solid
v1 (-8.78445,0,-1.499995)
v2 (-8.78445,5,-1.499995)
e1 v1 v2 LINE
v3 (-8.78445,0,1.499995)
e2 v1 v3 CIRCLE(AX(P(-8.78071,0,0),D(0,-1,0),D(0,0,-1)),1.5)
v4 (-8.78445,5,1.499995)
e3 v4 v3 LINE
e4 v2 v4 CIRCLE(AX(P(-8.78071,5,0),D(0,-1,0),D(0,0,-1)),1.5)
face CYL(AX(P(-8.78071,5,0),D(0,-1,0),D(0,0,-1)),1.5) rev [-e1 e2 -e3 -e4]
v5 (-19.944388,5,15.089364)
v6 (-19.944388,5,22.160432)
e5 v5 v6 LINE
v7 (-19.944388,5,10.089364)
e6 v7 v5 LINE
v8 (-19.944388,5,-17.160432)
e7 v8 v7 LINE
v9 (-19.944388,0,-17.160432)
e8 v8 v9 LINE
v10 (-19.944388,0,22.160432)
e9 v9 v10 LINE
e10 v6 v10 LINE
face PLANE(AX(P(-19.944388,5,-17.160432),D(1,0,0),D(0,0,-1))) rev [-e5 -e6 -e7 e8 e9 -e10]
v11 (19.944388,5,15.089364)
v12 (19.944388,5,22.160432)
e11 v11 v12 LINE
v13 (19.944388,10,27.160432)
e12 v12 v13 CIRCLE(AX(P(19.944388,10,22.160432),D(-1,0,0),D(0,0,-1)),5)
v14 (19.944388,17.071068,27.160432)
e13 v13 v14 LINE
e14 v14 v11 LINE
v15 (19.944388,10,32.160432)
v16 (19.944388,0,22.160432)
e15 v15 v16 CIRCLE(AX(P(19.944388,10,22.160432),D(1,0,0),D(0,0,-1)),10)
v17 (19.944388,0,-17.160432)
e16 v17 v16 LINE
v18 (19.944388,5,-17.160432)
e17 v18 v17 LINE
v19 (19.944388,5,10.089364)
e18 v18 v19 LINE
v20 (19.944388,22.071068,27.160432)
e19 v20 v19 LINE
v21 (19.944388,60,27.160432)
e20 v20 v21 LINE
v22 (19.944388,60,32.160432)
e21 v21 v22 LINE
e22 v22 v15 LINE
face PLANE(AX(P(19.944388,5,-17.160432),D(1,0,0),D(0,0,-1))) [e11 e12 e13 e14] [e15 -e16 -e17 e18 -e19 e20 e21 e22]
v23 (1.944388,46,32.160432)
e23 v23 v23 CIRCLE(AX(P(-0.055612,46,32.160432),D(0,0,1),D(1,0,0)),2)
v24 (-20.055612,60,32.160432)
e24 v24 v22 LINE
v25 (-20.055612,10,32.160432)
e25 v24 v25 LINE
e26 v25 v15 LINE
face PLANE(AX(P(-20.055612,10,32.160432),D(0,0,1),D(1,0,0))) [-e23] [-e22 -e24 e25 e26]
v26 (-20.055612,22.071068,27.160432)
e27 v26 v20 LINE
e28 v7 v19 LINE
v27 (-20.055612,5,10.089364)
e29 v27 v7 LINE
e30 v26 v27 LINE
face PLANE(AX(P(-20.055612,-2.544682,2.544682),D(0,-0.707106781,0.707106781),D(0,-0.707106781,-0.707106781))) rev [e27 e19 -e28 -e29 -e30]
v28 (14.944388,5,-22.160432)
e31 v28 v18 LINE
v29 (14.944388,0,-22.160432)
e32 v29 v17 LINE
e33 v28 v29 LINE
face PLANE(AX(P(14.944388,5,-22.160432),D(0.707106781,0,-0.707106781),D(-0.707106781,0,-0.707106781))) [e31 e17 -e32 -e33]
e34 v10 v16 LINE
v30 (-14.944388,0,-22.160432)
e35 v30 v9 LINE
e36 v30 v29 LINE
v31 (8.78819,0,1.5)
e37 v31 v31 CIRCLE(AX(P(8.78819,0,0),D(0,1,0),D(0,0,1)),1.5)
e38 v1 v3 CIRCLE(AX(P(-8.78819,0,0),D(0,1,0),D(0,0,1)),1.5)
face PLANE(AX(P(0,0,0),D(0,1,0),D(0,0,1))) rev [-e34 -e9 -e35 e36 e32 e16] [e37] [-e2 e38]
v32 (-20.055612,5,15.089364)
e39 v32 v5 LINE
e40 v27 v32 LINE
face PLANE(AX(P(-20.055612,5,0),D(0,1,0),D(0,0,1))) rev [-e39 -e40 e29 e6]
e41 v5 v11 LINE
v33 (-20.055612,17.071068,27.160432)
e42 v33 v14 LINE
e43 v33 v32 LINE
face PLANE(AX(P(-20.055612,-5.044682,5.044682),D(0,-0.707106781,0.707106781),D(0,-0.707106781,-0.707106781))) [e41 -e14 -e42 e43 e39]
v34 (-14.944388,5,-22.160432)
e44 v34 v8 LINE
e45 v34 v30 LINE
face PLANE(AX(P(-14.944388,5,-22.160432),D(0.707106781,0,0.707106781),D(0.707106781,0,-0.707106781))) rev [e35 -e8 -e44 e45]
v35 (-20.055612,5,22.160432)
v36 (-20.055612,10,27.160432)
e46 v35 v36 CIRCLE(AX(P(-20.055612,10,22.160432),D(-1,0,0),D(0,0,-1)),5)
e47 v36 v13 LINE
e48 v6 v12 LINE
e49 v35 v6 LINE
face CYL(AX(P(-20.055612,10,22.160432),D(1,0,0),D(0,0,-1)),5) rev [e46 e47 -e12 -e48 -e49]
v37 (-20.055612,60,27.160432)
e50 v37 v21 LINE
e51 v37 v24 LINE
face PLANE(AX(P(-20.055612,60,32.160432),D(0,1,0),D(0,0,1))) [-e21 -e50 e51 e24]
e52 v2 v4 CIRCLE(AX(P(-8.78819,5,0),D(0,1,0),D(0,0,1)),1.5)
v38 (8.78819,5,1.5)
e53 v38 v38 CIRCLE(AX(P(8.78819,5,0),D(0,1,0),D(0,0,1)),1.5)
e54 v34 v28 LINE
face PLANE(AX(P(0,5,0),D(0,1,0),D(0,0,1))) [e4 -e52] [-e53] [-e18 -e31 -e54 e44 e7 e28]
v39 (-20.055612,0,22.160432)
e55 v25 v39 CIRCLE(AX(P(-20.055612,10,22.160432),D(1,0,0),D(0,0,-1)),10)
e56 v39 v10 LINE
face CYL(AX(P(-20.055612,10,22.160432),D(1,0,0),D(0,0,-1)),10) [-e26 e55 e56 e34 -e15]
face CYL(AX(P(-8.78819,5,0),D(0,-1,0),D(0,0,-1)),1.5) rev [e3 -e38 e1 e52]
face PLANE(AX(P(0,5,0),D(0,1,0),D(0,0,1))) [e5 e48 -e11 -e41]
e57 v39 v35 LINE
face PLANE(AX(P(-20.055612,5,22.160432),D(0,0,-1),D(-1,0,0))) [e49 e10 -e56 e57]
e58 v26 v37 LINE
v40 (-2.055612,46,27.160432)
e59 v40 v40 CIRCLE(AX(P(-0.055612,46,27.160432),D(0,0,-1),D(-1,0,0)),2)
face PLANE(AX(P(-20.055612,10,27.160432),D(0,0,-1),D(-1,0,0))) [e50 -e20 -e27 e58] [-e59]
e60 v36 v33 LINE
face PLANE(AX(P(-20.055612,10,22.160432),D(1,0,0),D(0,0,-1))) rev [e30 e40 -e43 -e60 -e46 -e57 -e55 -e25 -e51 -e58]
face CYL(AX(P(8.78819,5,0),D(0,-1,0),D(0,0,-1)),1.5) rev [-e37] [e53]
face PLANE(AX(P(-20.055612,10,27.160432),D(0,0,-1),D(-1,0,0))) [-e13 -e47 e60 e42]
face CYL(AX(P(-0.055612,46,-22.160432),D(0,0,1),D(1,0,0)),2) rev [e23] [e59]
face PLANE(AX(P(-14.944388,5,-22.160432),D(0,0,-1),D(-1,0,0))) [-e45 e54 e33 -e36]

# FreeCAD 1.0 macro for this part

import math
import FreeCAD as App
import Part
import Sketcher

V = App.Vector

doc = App.newDocument("Part")
body = doc.addObject("PartDesign::Body", "Body")

# Sketch on XZ plane
sketch1 = doc.addObject("Sketcher::SketchObject", "Sketch")
body.addObject(sketch1)
sketch1.AttachmentSupport = (doc.XZ_Plane, [""])
sketch1.MapMode = "FlatFace"
sketch1.addGeometry(Part.LineSegment(V(15, -22, 0), V(-15, -22, 0)), False)
sketch1.addGeometry(Part.LineSegment(V(-15, -22, 0), V(-20, -17, 0)), False)
sketch1.addGeometry(Part.LineSegment(V(-20, -17, 0), V(-20, 22, 0)), False)
sketch1.addGeometry(Part.LineSegment(V(-20, 22, 0), V(20, 22, 0)), False)
sketch1.addGeometry(Part.LineSegment(V(20, 22, 0), V(20, -17, 0)), False)
sketch1.addGeometry(Part.LineSegment(V(20, -17, 0), V(15, -22, 0)), False)
sketch1.addConstraint(Sketcher.Constraint("Coincident", 0, 2, 1, 1))
sketch1.addConstraint(Sketcher.Constraint("Coincident", 1, 2, 2, 1))
sketch1.addConstraint(Sketcher.Constraint("Coincident", 2, 2, 3, 1))
sketch1.addConstraint(Sketcher.Constraint("Coincident", 3, 2, 4, 1))
sketch1.addConstraint(Sketcher.Constraint("Coincident", 4, 2, 5, 1))
sketch1.addConstraint(Sketcher.Constraint("Coincident", 5, 2, 0, 1))
sketch1.addConstraint(Sketcher.Constraint("Horizontal", 0))
sketch1.addConstraint(Sketcher.Constraint("Vertical", 2))
sketch1.addConstraint(Sketcher.Constraint("Horizontal", 3))
sketch1.addConstraint(Sketcher.Constraint("Vertical", 4))
sketch1.addConstraint(Sketcher.Constraint("Symmetric", 1, 2, 4, 2, -2))
sketch1.addConstraint(Sketcher.Constraint("Perpendicular", 1, 5))
sketch1.addConstraint(Sketcher.Constraint("Equal", 1, 5))
sketch1.addConstraint(Sketcher.Constraint("DistanceX", 1, 2, 0, 2, 5.0))
sketch1.addConstraint(Sketcher.Constraint("DistanceX", 0, 2, 0, 1, 29.888777))
sketch1.addConstraint(Sketcher.Constraint("DistanceY", 2, 1, 2, 2, 39.320863))
sketch1.addConstraint(Sketcher.Constraint("DistanceY", 0, 2, -1, 1, 22.160432))
pad1 = doc.addObject("PartDesign::Pad", "Pad")
body.addObject(pad1)
pad1.Profile = sketch1
pad1.Length = 5
pad1.Reversed = True

# Sketch on XZ plane
sketch2 = doc.addObject("Sketcher::SketchObject", "Sketch001")
body.addObject(sketch2)
sketch2.AttachmentSupport = (doc.XZ_Plane, [""])
sketch2.MapMode = "FlatFace"
sketch2.addGeometry(Part.Circle(V(-8.8, 0, 0), V(0, 0, 1), 1.5), False)
sketch2.addConstraint(Sketcher.Constraint("PointOnObject", 0, 3, -1))
sketch2.addConstraint(Sketcher.Constraint("Diameter", 0, 3.0))
sketch2.addConstraint(Sketcher.Constraint("DistanceX", 0, 3, -1, 1, 8.78071))
pocket1 = doc.addObject("PartDesign::Pocket", "Pocket")
body.addObject(pocket1)
pocket1.Profile = sketch2
pocket1.Length = 5

# Sketch on XZ plane
sketch3 = doc.addObject("Sketcher::SketchObject", "Sketch002")
body.addObject(sketch3)
sketch3.AttachmentSupport = (doc.XZ_Plane, [""])
sketch3.MapMode = "FlatFace"
sketch3.addGeometry(Part.LineSegment(V(-26.9, -29.1, 0), V(-26.9, 29.1, 0)), False)
sketch3.addGeometry(Part.LineSegment(V(-26.9, 29.1, 0), V(26.9, 29.1, 0)), False)
sketch3.addGeometry(Part.LineSegment(V(26.9, 29.1, 0), V(26.9, -29.1, 0)), False)
sketch3.addGeometry(Part.LineSegment(V(26.9, -29.1, 0), V(-26.9, -29.1, 0)), False)
sketch3.addGeometry(Part.LineSegment(V(-19.9, -17.2, 0), V(-14.9, -22.2, 0)), False)
sketch3.addGeometry(Part.LineSegment(V(-14.9, -22.2, 0), V(14.9, -22.2, 0)), False)
sketch3.addGeometry(Part.LineSegment(V(14.9, -22.2, 0), V(19.9, -17.2, 0)), False)
sketch3.addGeometry(Part.LineSegment(V(19.9, -17.2, 0), V(19.9, 22.2, 0)), False)
sketch3.addGeometry(Part.LineSegment(V(19.9, 22.2, 0), V(-19.9, 22.2, 0)), False)
sketch3.addGeometry(Part.LineSegment(V(-19.9, 22.2, 0), V(-19.9, -17.2, 0)), False)
sketch3.addGeometry(Part.Circle(V(8.8, 0, 0), V(0, 0, 1), 1.5), False)
sketch3.addGeometry(Part.Circle(V(-8.8, 0, 0), V(0, 0, 1), 1.5), False)
sketch3.addConstraint(Sketcher.Constraint("Coincident", 0, 2, 1, 1))
sketch3.addConstraint(Sketcher.Constraint("Coincident", 1, 2, 2, 1))
sketch3.addConstraint(Sketcher.Constraint("Coincident", 2, 2, 3, 1))
sketch3.addConstraint(Sketcher.Constraint("Coincident", 3, 2, 0, 1))
sketch3.addConstraint(Sketcher.Constraint("Coincident", 4, 2, 5, 1))
sketch3.addConstraint(Sketcher.Constraint("Coincident", 5, 2, 6, 1))
sketch3.addConstraint(Sketcher.Constraint("Coincident", 6, 2, 7, 1))
sketch3.addConstraint(Sketcher.Constraint("Coincident", 7, 2, 8, 1))
sketch3.addConstraint(Sketcher.Constraint("Coincident", 8, 2, 9, 1))
sketch3.addConstraint(Sketcher.Constraint("Coincident", 9, 2, 4, 1))
sketch3.addConstraint(Sketcher.Constraint("Vertical", 0))
sketch3.addConstraint(Sketcher.Constraint("Horizontal", 1))
sketch3.addConstraint(Sketcher.Constraint("Vertical", 2))
sketch3.addConstraint(Sketcher.Constraint("Horizontal", 3))
sketch3.addConstraint(Sketcher.Constraint("Horizontal", 5))
sketch3.addConstraint(Sketcher.Constraint("Vertical", 7))
sketch3.addConstraint(Sketcher.Constraint("Horizontal", 8))
sketch3.addConstraint(Sketcher.Constraint("Vertical", 9))
sketch3.addConstraint(Sketcher.Constraint("Equal", 10, 11))
sketch3.addConstraint(Sketcher.Constraint("Symmetric", 10, 3, 11, 3, -1, 1))
sketch3.addConstraint(Sketcher.Constraint("Symmetric", 0, 2, 2, 2, -1, 1))
sketch3.addConstraint(Sketcher.Constraint("Symmetric", 6, 2, 9, 2, -2))
sketch3.addConstraint(Sketcher.Constraint("PointOnObject", 10, 3, -1))
sketch3.addConstraint(Sketcher.Constraint("Perpendicular", 4, 6))
sketch3.addConstraint(Sketcher.Constraint("Equal", 4, 6))
sketch3.addConstraint(Sketcher.Constraint("Diameter", 10, 3.0))
sketch3.addConstraint(Sketcher.Constraint("DistanceX", 5, 2, 6, 2, 5.0))
sketch3.addConstraint(Sketcher.Constraint("DistanceX", 1, 1, 1, 2, 53.856))
sketch3.addConstraint(Sketcher.Constraint("DistanceY", 0, 1, 0, 2, 58.288))
sketch3.addConstraint(Sketcher.Constraint("DistanceX", 4, 2, 11, 3, 6.156199))
sketch3.addConstraint(Sketcher.Constraint("DistanceX", 5, 1, 5, 2, 29.888777))
sketch3.addConstraint(Sketcher.Constraint("DistanceY", 7, 1, 7, 2, 39.320863))
sketch3.addConstraint(Sketcher.Constraint("DistanceY", 4, 2, -1, 1, 22.160432))
pocket2 = doc.addObject("PartDesign::Pocket", "Pocket001")
body.addObject(pocket2)
pocket2.Profile = sketch3
pocket2.Length = 31.230173

# Sketch on YZ plane
sketch4 = doc.addObject("Sketcher::SketchObject", "Sketch003")
body.addObject(sketch4)
sketch4.AttachmentSupport = (doc.YZ_Plane, [""])
sketch4.MapMode = "FlatFace"
sketch4.AttachmentOffset = App.Placement(V(0, 0, 19.944388), App.Rotation())
sketch4.addGeometry(Part.LineSegment(V(0, 22.2, 0), V(5, 22.2, 0)), False)
sketch4.addGeometry(Part.ArcOfCircle(Part.Circle(V(10, 22.2, 0), V(0, 0, 1), 5), math.radians(90), math.radians(180)), False)
sketch4.addGeometry(Part.LineSegment(V(10, 27.2, 0), V(10, 32.2, 0)), False)
sketch4.addGeometry(Part.ArcOfCircle(Part.Circle(V(10, 22.2, 0), V(0, 0, 1), 10), math.radians(90), math.radians(180)), False)
sketch4.addConstraint(Sketcher.Constraint("Coincident", 0, 2, 1, 2))
sketch4.addConstraint(Sketcher.Constraint("Coincident", 1, 1, 2, 1))
sketch4.addConstraint(Sketcher.Constraint("Coincident", 2, 2, 3, 1))
sketch4.addConstraint(Sketcher.Constraint("Coincident", 3, 2, 0, 1))
sketch4.addConstraint(Sketcher.Constraint("Horizontal", 0))
sketch4.addConstraint(Sketcher.Constraint("Vertical", 2))
sketch4.addConstraint(Sketcher.Constraint("Coincident", 3, 3, 1, 3))
sketch4.addConstraint(Sketcher.Constraint("PointOnObject", 3, 2, -2))
sketch4.addConstraint(Sketcher.Constraint("Horizontal", 3, 3, 0, 2))
sketch4.addConstraint(Sketcher.Constraint("Vertical", 3, 3, 1, 1))
sketch4.addConstraint(Sketcher.Constraint("Radius", 1, 5.0))
sketch4.addConstraint(Sketcher.Constraint("Radius", 3, 10.0))
sketch4.addConstraint(Sketcher.Constraint("DistanceY", -1, 1, 1, 3, 22.160432))
pad2 = doc.addObject("PartDesign::Pad", "Pad001")
body.addObject(pad2)
pad2.Profile = sketch4
pad2.Length = 40
pad2.Reversed = True

# Sketch on YZ plane
sketch5 = doc.addObject("Sketcher::SketchObject", "Sketch004")
body.addObject(sketch5)
sketch5.AttachmentSupport = (doc.YZ_Plane, [""])
sketch5.MapMode = "FlatFace"
sketch5.AttachmentOffset = App.Placement(V(0, 0, 19.944388), App.Rotation())
sketch5.addGeometry(Part.LineSegment(V(60, 32.2, 0), V(10, 32.2, 0)), False)
sketch5.addGeometry(Part.LineSegment(V(10, 32.2, 0), V(10, 27.2, 0)), False)
sketch5.addGeometry(Part.LineSegment(V(10, 27.2, 0), V(60, 27.2, 0)), False)
sketch5.addGeometry(Part.LineSegment(V(60, 27.2, 0), V(60, 32.2, 0)), False)
sketch5.addConstraint(Sketcher.Constraint("Coincident", 0, 2, 1, 1))
sketch5.addConstraint(Sketcher.Constraint("Coincident", 1, 2, 2, 1))
sketch5.addConstraint(Sketcher.Constraint("Coincident", 2, 2, 3, 1))
sketch5.addConstraint(Sketcher.Constraint("Coincident", 3, 2, 0, 1))
sketch5.addConstraint(Sketcher.Constraint("Horizontal", 0))
sketch5.addConstraint(Sketcher.Constraint("Vertical", 1))
sketch5.addConstraint(Sketcher.Constraint("Horizontal", 2))
sketch5.addConstraint(Sketcher.Constraint("Vertical", 3))
sketch5.addConstraint(Sketcher.Constraint("DistanceX", 0, 2, 0, 1, 50.0))
sketch5.addConstraint(Sketcher.Constraint("DistanceY", 1, 2, 1, 1, 5.0))
sketch5.addConstraint(Sketcher.Constraint("DistanceX", -1, 1, 0, 2, 10.0))
sketch5.addConstraint(Sketcher.Constraint("DistanceY", -1, 1, 0, 2, 32.160432))
pad3 = doc.addObject("PartDesign::Pad", "Pad002")
body.addObject(pad3)
pad3.Profile = sketch5
pad3.Length = 40
pad3.Reversed = True

# Sketch on YZ plane
sketch6 = doc.addObject("Sketcher::SketchObject", "Sketch005")
body.addObject(sketch6)
sketch6.AttachmentSupport = (doc.YZ_Plane, [""])
sketch6.MapMode = "FlatFace"
sketch6.AttachmentOffset = App.Placement(V(0, 0, 19.944388), App.Rotation())
sketch6.addGeometry(Part.LineSegment(V(5, 10, 0), V(22, 27, 0)), False)
sketch6.addGeometry(Part.LineSegment(V(22, 27, 0), V(17, 27, 0)), False)
sketch6.addGeometry(Part.LineSegment(V(17, 27, 0), V(5, 15, 0)), False)
sketch6.addGeometry(Part.LineSegment(V(5, 15, 0), V(5, 10, 0)), False)
sketch6.addConstraint(Sketcher.Constraint("Coincident", 0, 2, 1, 1))
sketch6.addConstraint(Sketcher.Constraint("Coincident", 1, 2, 2, 1))
sketch6.addConstraint(Sketcher.Constraint("Coincident", 2, 2, 3, 1))
sketch6.addConstraint(Sketcher.Constraint("Coincident", 3, 2, 0, 1))
sketch6.addConstraint(Sketcher.Constraint("Horizontal", 1))
sketch6.addConstraint(Sketcher.Constraint("Vertical", 3))
sketch6.addConstraint(Sketcher.Constraint("Parallel", 0, 2))
sketch6.addConstraint(Sketcher.Constraint("Equal", 1, 3))
sketch6.addConstraint(Sketcher.Constraint("DistanceX", 1, 2, 1, 1, 5.0))
sketch6.addConstraint(Sketcher.Constraint("DistanceX", -1, 1, 2, 2, 5.0))
sketch6.addConstraint(Sketcher.Constraint("DistanceY", -1, 1, 0, 2, 27.160432))
sketch6.addConstraint(Sketcher.Constraint("Distance", 0, 24.142136))
pad4 = doc.addObject("PartDesign::Pad", "Pad003")
body.addObject(pad4)
pad4.Profile = sketch6
pad4.Length = 40
pad4.Reversed = True

# Sketch on XY plane
sketch7 = doc.addObject("Sketcher::SketchObject", "Sketch006")
body.addObject(sketch7)
sketch7.AttachmentSupport = (doc.XY_Plane, [""])
sketch7.MapMode = "FlatFace"
sketch7.AttachmentOffset = App.Placement(V(0, 0, 32.160432), App.Rotation())
sketch7.addGeometry(Part.Circle(V(-0.1, 46, 0), V(0, 0, 1), 2), False)
sketch7.addConstraint(Sketcher.Constraint("Diameter", 0, 4.0))
sketch7.addConstraint(Sketcher.Constraint("DistanceY", -1, 1, 0, 3, 46.0))
sketch7.addConstraint(Sketcher.Constraint("DistanceX", 0, 3, -1, 1, 0.055612))
pocket3 = doc.addObject("PartDesign::Pocket", "Pocket002")
body.addObject(pocket3)
pocket3.Profile = sketch7
pocket3.Type = "ThroughAll"

doc.recompute()
